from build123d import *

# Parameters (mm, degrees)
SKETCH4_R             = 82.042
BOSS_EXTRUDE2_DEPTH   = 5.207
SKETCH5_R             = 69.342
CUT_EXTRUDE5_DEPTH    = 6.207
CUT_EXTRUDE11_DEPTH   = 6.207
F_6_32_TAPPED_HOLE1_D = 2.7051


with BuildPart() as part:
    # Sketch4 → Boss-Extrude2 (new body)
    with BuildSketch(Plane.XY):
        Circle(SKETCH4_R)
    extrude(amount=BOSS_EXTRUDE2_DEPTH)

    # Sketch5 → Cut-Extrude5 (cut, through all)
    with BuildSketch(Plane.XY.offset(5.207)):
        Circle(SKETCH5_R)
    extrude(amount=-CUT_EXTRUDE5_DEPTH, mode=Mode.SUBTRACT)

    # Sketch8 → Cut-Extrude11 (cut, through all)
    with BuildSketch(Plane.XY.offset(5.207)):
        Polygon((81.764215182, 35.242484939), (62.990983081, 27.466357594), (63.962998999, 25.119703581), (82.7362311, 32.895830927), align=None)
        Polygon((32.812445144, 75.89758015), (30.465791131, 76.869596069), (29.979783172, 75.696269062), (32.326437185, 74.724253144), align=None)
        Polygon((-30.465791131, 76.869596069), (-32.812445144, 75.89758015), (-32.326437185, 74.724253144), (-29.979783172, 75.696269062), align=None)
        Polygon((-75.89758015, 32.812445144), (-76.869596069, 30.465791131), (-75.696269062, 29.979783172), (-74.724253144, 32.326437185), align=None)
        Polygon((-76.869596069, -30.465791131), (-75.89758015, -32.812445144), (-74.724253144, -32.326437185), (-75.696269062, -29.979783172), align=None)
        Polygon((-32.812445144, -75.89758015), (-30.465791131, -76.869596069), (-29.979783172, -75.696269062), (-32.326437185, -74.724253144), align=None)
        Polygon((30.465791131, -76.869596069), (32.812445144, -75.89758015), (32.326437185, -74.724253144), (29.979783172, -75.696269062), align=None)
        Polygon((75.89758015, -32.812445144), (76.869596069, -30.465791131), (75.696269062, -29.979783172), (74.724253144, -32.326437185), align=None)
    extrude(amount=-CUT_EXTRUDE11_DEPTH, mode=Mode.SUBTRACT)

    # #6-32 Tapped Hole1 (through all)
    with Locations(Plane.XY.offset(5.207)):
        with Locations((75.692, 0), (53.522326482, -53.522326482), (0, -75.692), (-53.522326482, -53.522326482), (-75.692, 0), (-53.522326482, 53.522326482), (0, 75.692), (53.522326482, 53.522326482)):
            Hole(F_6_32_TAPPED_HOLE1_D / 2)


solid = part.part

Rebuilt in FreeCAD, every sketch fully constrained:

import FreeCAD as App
import Part
import Sketcher
Q = App.Units.Quantity

doc = App.newDocument("Part")
body = doc.addObject("PartDesign::Body", "Body")

# Sketch on XY plane
sketch1 = body.newObject("Sketcher::SketchObject", "Sketch")
sketch1.AttachmentSupport = (doc.getObject("XY_Plane"), [""])
sketch1.MapMode = "FlatFace"
sketch1.addGeometry(Part.Circle(App.Vector(0, 0, 0), App.Vector(0, 0, 1), 82), False)
sketch1.addConstraint(Sketcher.Constraint("Coincident", 0, 3, -1, 1))
sketch1.addConstraint(Sketcher.Constraint("Diameter", 0, Q("6.46 in")))
pad1 = body.newObject("PartDesign::Pad", "Pad")
pad1.Profile = sketch1
pad1.Length = Q("0.205 in")

# Sketch on XY plane
sketch2 = body.newObject("Sketcher::SketchObject", "Sketch001")
sketch2.AttachmentSupport = (doc.getObject("XY_Plane"), [""])
sketch2.MapMode = "FlatFace"
sketch2.AttachmentOffset = App.Placement(App.Vector(0, 0, 0.205 * 25.4), App.Rotation())
sketch2.addGeometry(Part.Circle(App.Vector(0, 0, 0), App.Vector(0, 0, 1), 69), False)
sketch2.addConstraint(Sketcher.Constraint("Coincident", 0, 3, -1, 1))
sketch2.addConstraint(Sketcher.Constraint("Diameter", 0, Q("5.46 in")))
pocket1 = body.newObject("PartDesign::Pocket", "Pocket")
pocket1.Profile = sketch2
pocket1.Type = "ThroughAll"

# Sketch on XY plane
sketch3 = body.newObject("Sketcher::SketchObject", "Sketch002")
sketch3.AttachmentSupport = (doc.getObject("XY_Plane"), [""])
sketch3.MapMode = "FlatFace"
sketch3.AttachmentOffset = App.Placement(App.Vector(0, 0, 0.205 * 25.4), App.Rotation())
sketch3.addGeometry(Part.LineSegment(App.Vector(81.8, 35.2, 0), App.Vector(63, 27.5, 0)), False)
sketch3.addGeometry(Part.LineSegment(App.Vector(63, 27.5, 0), App.Vector(64, 25.1, 0)), False)
sketch3.addGeometry(Part.LineSegment(App.Vector(64, 25.1, 0), App.Vector(82.7, 32.9, 0)), False)
sketch3.addGeometry(Part.LineSegment(App.Vector(82.7, 32.9, 0), App.Vector(81.8, 35.2, 0)), False)
sketch3.addGeometry(Part.LineSegment(App.Vector(32.8, 75.9, 0), App.Vector(30.5, 76.9, 0)), False)
sketch3.addGeometry(Part.LineSegment(App.Vector(30.5, 76.9, 0), App.Vector(30, 75.7, 0)), False)
sketch3.addGeometry(Part.LineSegment(App.Vector(30, 75.7, 0), App.Vector(32.3, 74.7, 0)), False)
sketch3.addGeometry(Part.LineSegment(App.Vector(32.3, 74.7, 0), App.Vector(32.8, 75.9, 0)), False)
sketch3.addGeometry(Part.LineSegment(App.Vector(-30.5, 76.9, 0), App.Vector(-32.8, 75.9, 0)), False)
sketch3.addGeometry(Part.LineSegment(App.Vector(-32.8, 75.9, 0), App.Vector(-32.3, 74.7, 0)), False)
sketch3.addGeometry(Part.LineSegment(App.Vector(-32.3, 74.7, 0), App.Vector(-30, 75.7, 0)), False)
sketch3.addGeometry(Part.LineSegment(App.Vector(-30, 75.7, 0), App.Vector(-30.5, 76.9, 0)), False)
sketch3.addGeometry(Part.LineSegment(App.Vector(-75.9, 32.8, 0), App.Vector(-76.9, 30.5, 0)), False)
sketch3.addGeometry(Part.LineSegment(App.Vector(-76.9, 30.5, 0), App.Vector(-75.7, 30, 0)), False)
sketch3.addGeometry(Part.LineSegment(App.Vector(-75.7, 30, 0), App.Vector(-74.7, 32.3, 0)), False)
sketch3.addGeometry(Part.LineSegment(App.Vector(-74.7, 32.3, 0), App.Vector(-75.9, 32.8, 0)), False)
sketch3.addGeometry(Part.LineSegment(App.Vector(-76.9, -30.5, 0), App.Vector(-75.9, -32.8, 0)), False)
sketch3.addGeometry(Part.LineSegment(App.Vector(-75.9, -32.8, 0), App.Vector(-74.7, -32.3, 0)), False)
sketch3.addGeometry(Part.LineSegment(App.Vector(-74.7, -32.3, 0), App.Vector(-75.7, -30, 0)), False)
sketch3.addGeometry(Part.LineSegment(App.Vector(-75.7, -30, 0), App.Vector(-76.9, -30.5, 0)), False)
sketch3.addGeometry(Part.LineSegment(App.Vector(-32.8, -75.9, 0), App.Vector(-30.5, -76.9, 0)), False)
sketch3.addGeometry(Part.LineSegment(App.Vector(-30.5, -76.9, 0), App.Vector(-30, -75.7, 0)), False)
sketch3.addGeometry(Part.LineSegment(App.Vector(-30, -75.7, 0), App.Vector(-32.3, -74.7, 0)), False)
sketch3.addGeometry(Part.LineSegment(App.Vector(-32.3, -74.7, 0), App.Vector(-32.8, -75.9, 0)), False)
sketch3.addGeometry(Part.LineSegment(App.Vector(30.5, -76.9, 0), App.Vector(32.8, -75.9, 0)), False)
sketch3.addGeometry(Part.LineSegment(App.Vector(32.8, -75.9, 0), App.Vector(32.3, -74.7, 0)), False)
sketch3.addGeometry(Part.LineSegment(App.Vector(32.3, -74.7, 0), App.Vector(30, -75.7, 0)), False)
sketch3.addGeometry(Part.LineSegment(App.Vector(30, -75.7, 0), App.Vector(30.5, -76.9, 0)), False)
sketch3.addGeometry(Part.LineSegment(App.Vector(75.9, -32.8, 0), App.Vector(76.9, -30.5, 0)), False)
sketch3.addGeometry(Part.LineSegment(App.Vector(76.9, -30.5, 0), App.Vector(75.7, -30, 0)), False)
sketch3.addGeometry(Part.LineSegment(App.Vector(75.7, -30, 0), App.Vector(74.7, -32.3, 0)), False)
sketch3.addGeometry(Part.LineSegment(App.Vector(74.7, -32.3, 0), App.Vector(75.9, -32.8, 0)), False)
sketch3.addConstraint(Sketcher.Constraint("Coincident", 0, 2, 1, 1))
sketch3.addConstraint(Sketcher.Constraint("Coincident", 1, 2, 2, 1))
sketch3.addConstraint(Sketcher.Constraint("Coincident", 2, 2, 3, 1))
sketch3.addConstraint(Sketcher.Constraint("Coincident", 3, 2, 0, 1))
sketch3.addConstraint(Sketcher.Constraint("Coincident", 4, 2, 5, 1))
sketch3.addConstraint(Sketcher.Constraint("Coincident", 5, 2, 6, 1))
sketch3.addConstraint(Sketcher.Constraint("Coincident", 6, 2, 7, 1))
sketch3.addConstraint(Sketcher.Constraint("Coincident", 7, 2, 4, 1))
sketch3.addConstraint(Sketcher.Constraint("Coincident", 8, 2, 9, 1))
sketch3.addConstraint(Sketcher.Constraint("Coincident", 9, 2, 10, 1))
sketch3.addConstraint(Sketcher.Constraint("Coincident", 10, 2, 11, 1))
sketch3.addConstraint(Sketcher.Constraint("Coincident", 11, 2, 8, 1))
sketch3.addConstraint(Sketcher.Constraint("Coincident", 12, 2, 13, 1))
sketch3.addConstraint(Sketcher.Constraint("Coincident", 13, 2, 14, 1))
sketch3.addConstraint(Sketcher.Constraint("Coincident", 14, 2, 15, 1))
sketch3.addConstraint(Sketcher.Constraint("Coincident", 15, 2, 12, 1))
sketch3.addConstraint(Sketcher.Constraint("Coincident", 16, 2, 17, 1))
sketch3.addConstraint(Sketcher.Constraint("Coincident", 17, 2, 18, 1))
sketch3.addConstraint(Sketcher.Constraint("Coincident", 18, 2, 19, 1))
sketch3.addConstraint(Sketcher.Constraint("Coincident", 19, 2, 16, 1))
sketch3.addConstraint(Sketcher.Constraint("Coincident", 20, 2, 21, 1))
sketch3.addConstraint(Sketcher.Constraint("Coincident", 21, 2, 22, 1))
sketch3.addConstraint(Sketcher.Constraint("Coincident", 22, 2, 23, 1))
sketch3.addConstraint(Sketcher.Constraint("Coincident", 23, 2, 20, 1))
sketch3.addConstraint(Sketcher.Constraint("Coincident", 24, 2, 25, 1))
sketch3.addConstraint(Sketcher.Constraint("Coincident", 25, 2, 26, 1))
sketch3.addConstraint(Sketcher.Constraint("Coincident", 26, 2, 27, 1))
sketch3.addConstraint(Sketcher.Constraint("Coincident", 27, 2, 24, 1))
sketch3.addConstraint(Sketcher.Constraint("Coincident", 28, 2, 29, 1))
sketch3.addConstraint(Sketcher.Constraint("Coincident", 29, 2, 30, 1))
sketch3.addConstraint(Sketcher.Constraint("Coincident", 30, 2, 31, 1))
sketch3.addConstraint(Sketcher.Constraint("Coincident", 31, 2, 28, 1))
sketch3.addConstraint(Sketcher.Constraint("Symmetric", 4, 2, 20, 2, -1, 1))
sketch3.addConstraint(Sketcher.Constraint("Symmetric", 5, 2, 21, 2, -1, 1))
sketch3.addConstraint(Sketcher.Constraint("Symmetric", 6, 2, 22, 2, -1, 1))
sketch3.addConstraint(Sketcher.Constraint("Symmetric", 7, 2, 23, 2, -1, 1))
sketch3.addConstraint(Sketcher.Constraint("Symmetric", 8, 2, 24, 2, -1, 1))
sketch3.addConstraint(Sketcher.Constraint("Symmetric", 9, 2, 25, 2, -1, 1))
sketch3.addConstraint(Sketcher.Constraint("Symmetric", 10, 2, 26, 2, -1, 1))
sketch3.addConstraint(Sketcher.Constraint("Symmetric", 11, 2, 27, 2, -1, 1))
sketch3.addConstraint(Sketcher.Constraint("Symmetric", 12, 2, 28, 2, -1, 1))
sketch3.addConstraint(Sketcher.Constraint("Symmetric", 13, 2, 29, 2, -1, 1))
sketch3.addConstraint(Sketcher.Constraint("Symmetric", 14, 2, 30, 2, -1, 1))
sketch3.addConstraint(Sketcher.Constraint("Symmetric", 15, 2, 31, 2, -1, 1))
sketch3.addConstraint(Sketcher.Constraint("Symmetric", 7, 2, 8, 2, -2))
sketch3.addConstraint(Sketcher.Constraint("Symmetric", 6, 2, 9, 2, -2))
sketch3.addConstraint(Sketcher.Constraint("Symmetric", 5, 2, 10, 2, -2))
sketch3.addConstraint(Sketcher.Constraint("Symmetric", 4, 2, 11, 2, -2))
sketch3.addConstraint(Sketcher.Constraint("Symmetric", 19, 2, 28, 2, -2))
sketch3.addConstraint(Sketcher.Constraint("Symmetric", 18, 2, 29, 2, -2))
sketch3.addConstraint(Sketcher.Constraint("Symmetric", 17, 2, 30, 2, -2))
sketch3.addConstraint(Sketcher.Constraint("Symmetric", 16, 2, 31, 2, -2))
sketch3.addConstraint(Sketcher.Constraint("Perpendicular", 0, 1))
sketch3.addConstraint(Sketcher.Constraint("Perpendicular", 1, 2))
sketch3.addConstraint(Sketcher.Constraint("Perpendicular", 2, 3))
sketch3.addConstraint(Sketcher.Constraint("Perpendicular", 4, 5))
sketch3.addConstraint(Sketcher.Constraint("Perpendicular", 5, 6))
sketch3.addConstraint(Sketcher.Constraint("Perpendicular", 6, 7))
sketch3.addConstraint(Sketcher.Constraint("Perpendicular", 3, 8))
sketch3.addConstraint(Sketcher.Constraint("Parallel", 7, 12))
sketch3.addConstraint(Sketcher.Constraint("Perpendicular", 12, 13))
sketch3.addConstraint(Sketcher.Constraint("Perpendicular", 13, 14))
sketch3.addConstraint(Sketcher.Constraint("Perpendicular", 14, 15))
sketch3.addConstraint(Sketcher.Constraint("Equal", 3, 4))
sketch3.addConstraint(Sketcher.Constraint("Equal", 10, 12))
sketch3.addConstraint(Sketcher.Constraint("Equal", 11, 13))
sketch3.addConstraint(Sketcher.Constraint("Distance", 0, Q("0.8 in")))
sketch3.addConstraint(Sketcher.Constraint("Distance", 1, Q("0.1 in")))
sketch3.addConstraint(Sketcher.Constraint("Angle", 0, Q("-157.5 deg")))
sketch3.addConstraint(Sketcher.Constraint("Distance", 5, Q("0.05 in")))
sketch3.addConstraint(Sketcher.Constraint("DistanceX", -1, 1, 1, 2, Q("63.962999 mm")))
sketch3.addConstraint(Sketcher.Constraint("DistanceX", 5, 2, 0, 2, Q("33.0112 mm")))
sketch3.addConstraint(Sketcher.Constraint("DistanceY", 16, 2, 9, 2, Q("107.536698 mm")))
sketch3.addConstraint(Sketcher.Constraint("DistanceY", -1, 1, 2, 2, Q("32.895831 mm")))
sketch3.addConstraint(Sketcher.Constraint("DistanceY", -1, 1, 5, 2, Q("75.696269 mm")))
sketch3.addConstraint(Sketcher.Constraint("DistanceX", 13, 2, -1, 1, Q("75.696269 mm")))
pocket2 = body.newObject("PartDesign::Pocket", "Pocket001")
pocket2.Profile = sketch3
pocket2.Type = "ThroughAll"

# Sketch on XY plane
sketch4 = body.newObject("Sketcher::SketchObject", "Sketch003")
sketch4.AttachmentSupport = (doc.getObject("XY_Plane"), [""])
sketch4.MapMode = "FlatFace"
sketch4.AttachmentOffset = App.Placement(App.Vector(0, 0, 0.205 * 25.4), App.Rotation())
sketch4.addGeometry(Part.Circle(App.Vector(75.7, 0, 0), App.Vector(0, 0, 1), 1.4), False)
sketch4.addGeometry(Part.Circle(App.Vector(53.5, -53.5, 0), App.Vector(0, 0, 1), 1.4), False)
sketch4.addGeometry(Part.Circle(App.Vector(0, -75.7, 0), App.Vector(0, 0, 1), 1.4), False)
sketch4.addGeometry(Part.Circle(App.Vector(-53.5, -53.5, 0), App.Vector(0, 0, 1), 1.4), False)
sketch4.addGeometry(Part.Circle(App.Vector(-75.7, 0, 0), App.Vector(0, 0, 1), 1.4), False)
sketch4.addGeometry(Part.Circle(App.Vector(-53.5, 53.5, 0), App.Vector(0, 0, 1), 1.4), False)
sketch4.addGeometry(Part.Circle(App.Vector(0, 75.7, 0), App.Vector(0, 0, 1), 1.4), False)
sketch4.addGeometry(Part.Circle(App.Vector(53.5, 53.5, 0), App.Vector(0, 0, 1), 1.4), False)
sketch4.addConstraint(Sketcher.Constraint("Equal", 0, 1))
sketch4.addConstraint(Sketcher.Constraint("Equal", 1, 2))
sketch4.addConstraint(Sketcher.Constraint("Equal", 2, 3))
sketch4.addConstraint(Sketcher.Constraint("Equal", 3, 4))
sketch4.addConstraint(Sketcher.Constraint("Equal", 4, 5))
sketch4.addConstraint(Sketcher.Constraint("Equal", 5, 6))
sketch4.addConstraint(Sketcher.Constraint("Equal", 6, 7))
sketch4.addConstraint(Sketcher.Constraint("Symmetric", 0, 3, 4, 3, -1, 1))
sketch4.addConstraint(Sketcher.Constraint("Symmetric", 1, 3, 5, 3, -1, 1))
sketch4.addConstraint(Sketcher.Constraint("Symmetric", 2, 3, 6, 3, -1, 1))
sketch4.addConstraint(Sketcher.Constraint("Symmetric", 3, 3, 7, 3, -1, 1))
sketch4.addConstraint(Sketcher.Constraint("Symmetric", 1, 3, 3, 3, -2))
sketch4.addConstraint(Sketcher.Constraint("PointOnObject", 0, 3, -1))
sketch4.addConstraint(Sketcher.Constraint("PointOnObject", 2, 3, -2))
sketch4.addConstraint(Sketcher.Constraint("Diameter", 0, Q("0.1065 in")))
sketch4.addConstraint(Sketcher.Constraint("DistanceX", -1, 1, 0, 3, Q("2.98 in")))
sketch4.addConstraint(Sketcher.Constraint("DistanceY", 2, 3, -1, 1, Q("2.98 in")))
sketch4.addConstraint(Sketcher.Constraint("DistanceX", -1, 1, 1, 3, Q("53.522326 mm")))
sketch4.addConstraint(Sketcher.Constraint("DistanceY", 1, 3, -1, 1, Q("53.522326 mm")))
doc.recompute()
hole = body.newObject("PartDesign::Hole", "Hole")
hole.Profile = sketch4
hole.ThreadType = "None"
hole.Diameter = Q("0.1065 in")
hole.DepthType = "ThroughAll"

doc.recompute()
